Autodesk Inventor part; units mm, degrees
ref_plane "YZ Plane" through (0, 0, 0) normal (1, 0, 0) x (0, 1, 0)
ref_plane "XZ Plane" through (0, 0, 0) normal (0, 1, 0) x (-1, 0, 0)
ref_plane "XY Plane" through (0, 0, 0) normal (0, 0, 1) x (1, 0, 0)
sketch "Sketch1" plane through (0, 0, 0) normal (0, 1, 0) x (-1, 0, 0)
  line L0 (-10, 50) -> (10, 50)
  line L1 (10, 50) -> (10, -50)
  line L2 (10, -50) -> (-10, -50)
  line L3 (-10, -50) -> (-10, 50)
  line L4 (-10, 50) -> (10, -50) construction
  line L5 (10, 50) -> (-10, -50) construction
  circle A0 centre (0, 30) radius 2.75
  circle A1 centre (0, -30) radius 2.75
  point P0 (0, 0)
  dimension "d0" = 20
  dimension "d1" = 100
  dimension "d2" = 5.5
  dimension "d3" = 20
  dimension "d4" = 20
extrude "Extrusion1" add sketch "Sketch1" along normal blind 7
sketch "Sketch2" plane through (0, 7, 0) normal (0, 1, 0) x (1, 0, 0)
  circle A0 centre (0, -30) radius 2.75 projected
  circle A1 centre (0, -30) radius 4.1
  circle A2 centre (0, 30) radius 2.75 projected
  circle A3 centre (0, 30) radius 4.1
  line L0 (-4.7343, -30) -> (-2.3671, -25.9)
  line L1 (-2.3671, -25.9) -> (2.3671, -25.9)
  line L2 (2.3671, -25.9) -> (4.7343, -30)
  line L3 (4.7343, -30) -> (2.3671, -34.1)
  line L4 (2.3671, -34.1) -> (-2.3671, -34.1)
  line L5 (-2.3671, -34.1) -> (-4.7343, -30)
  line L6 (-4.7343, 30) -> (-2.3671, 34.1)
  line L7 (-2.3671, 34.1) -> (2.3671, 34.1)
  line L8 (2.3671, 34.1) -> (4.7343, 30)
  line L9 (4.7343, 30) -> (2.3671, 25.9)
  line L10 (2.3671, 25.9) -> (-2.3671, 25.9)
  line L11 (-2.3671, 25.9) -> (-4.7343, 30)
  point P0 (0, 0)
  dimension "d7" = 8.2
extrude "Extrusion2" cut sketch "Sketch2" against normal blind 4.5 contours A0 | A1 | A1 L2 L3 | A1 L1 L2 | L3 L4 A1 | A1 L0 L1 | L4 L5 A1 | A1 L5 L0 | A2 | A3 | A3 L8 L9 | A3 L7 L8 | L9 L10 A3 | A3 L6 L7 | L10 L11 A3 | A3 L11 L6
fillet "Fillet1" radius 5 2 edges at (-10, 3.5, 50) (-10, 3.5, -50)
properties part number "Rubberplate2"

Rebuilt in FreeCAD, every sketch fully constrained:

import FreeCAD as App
import Part
import Sketcher

V = App.Vector
Q = App.Units.Quantity


def edges_at(feature, points):
    """Names of the edges that pass closest to the given points."""
    edges = feature.Shape.Edges
    near = lambda p: min(range(len(edges)), key=lambda i: edges[i].distToShape(Part.Vertex(*p))[0])
    return sorted({f"Edge{near(p) + 1}" for p in points})

doc = App.newDocument("Part")
body = doc.addObject("PartDesign::Body", "Body")

sketch1 = body.newObject("Sketcher::SketchObject", "Sketch")
sketch1.AttachmentSupport = (doc.getObject("XZ_Plane"), [""])
sketch1.MapMode = "FlatFace"
sketch1.addGeometry(Part.LineSegment(V(-10, 50, 0), V(10, 50, 0)), False)
sketch1.addGeometry(Part.LineSegment(V(10, 50, 0), V(10, -50, 0)), False)
sketch1.addGeometry(Part.LineSegment(V(10, -50, 0), V(-10, -50, 0)), False)
sketch1.addGeometry(Part.LineSegment(V(-10, -50, 0), V(-10, 50, 0)), False)
sketch1.addGeometry(Part.Circle(V(0, -30, 0), V(0, 0, 1), 2.8), False)
sketch1.addGeometry(Part.Circle(V(0, 30, 0), V(0, 0, 1), 2.8), False)
sketch1.addConstraint(Sketcher.Constraint("Coincident", 0, 2, 1, 1))
sketch1.addConstraint(Sketcher.Constraint("Coincident", 1, 2, 2, 1))
sketch1.addConstraint(Sketcher.Constraint("Coincident", 2, 2, 3, 1))
sketch1.addConstraint(Sketcher.Constraint("Coincident", 3, 2, 0, 1))
sketch1.addConstraint(Sketcher.Constraint("Horizontal", 0))
sketch1.addConstraint(Sketcher.Constraint("Vertical", 1))
sketch1.addConstraint(Sketcher.Constraint("Horizontal", 2))
sketch1.addConstraint(Sketcher.Constraint("Vertical", 3))
sketch1.addConstraint(Sketcher.Constraint("Equal", 4, 5))
sketch1.addConstraint(Sketcher.Constraint("Symmetric", 4, 3, 5, 3, -1, 1))
sketch1.addConstraint(Sketcher.Constraint("Symmetric", 0, 2, 2, 2, -1, 1))
sketch1.addConstraint(Sketcher.Constraint("PointOnObject", 4, 3, -2))
sketch1.addConstraint(Sketcher.Constraint("Diameter", 4, Q("5.5 mm")))
sketch1.addConstraint(Sketcher.Constraint("DistanceX", 0, 1, 0, 2, Q("20 mm")))
sketch1.addConstraint(Sketcher.Constraint("DistanceY", 1, 2, 1, 1, Q("100 mm")))
sketch1.addConstraint(Sketcher.Constraint("DistanceY", 5, 3, 0, 2, Q("20 mm")))
pad1 = body.newObject("PartDesign::Pad", "Pad")
pad1.Profile = sketch1
pad1.Length = 7
pad1.Reversed = True

sketch2 = body.newObject("Sketcher::SketchObject", "Sketch001")
sketch2.AttachmentSupport = (doc.getObject("XZ_Plane"), [""])
sketch2.MapMode = "FlatFace"
sketch2.AttachmentOffset = App.Placement(V(0, 0, -7), App.Rotation())
sketch2.addGeometry(Part.LineSegment(V(4.7, 30, 0), V(2.4, 25.9, 0)), False)
sketch2.addGeometry(Part.LineSegment(V(2.4, 25.9, 0), V(-2.4, 25.9, 0)), False)
sketch2.addGeometry(Part.LineSegment(V(-2.4, 25.9, 0), V(-4.7, 30, 0)), False)
sketch2.addGeometry(Part.LineSegment(V(-4.7, 30, 0), V(-2.4, 34.1, 0)), False)
sketch2.addGeometry(Part.LineSegment(V(-2.4, 34.1, 0), V(2.4, 34.1, 0)), False)
sketch2.addGeometry(Part.LineSegment(V(2.4, 34.1, 0), V(4.7, 30, 0)), False)
sketch2.addGeometry(Part.LineSegment(V(4.7, -30, 0), V(2.4, -34.1, 0)), False)
sketch2.addGeometry(Part.LineSegment(V(2.4, -34.1, 0), V(-2.4, -34.1, 0)), False)
sketch2.addGeometry(Part.LineSegment(V(-2.4, -34.1, 0), V(-4.7, -30, 0)), False)
sketch2.addGeometry(Part.LineSegment(V(-4.7, -30, 0), V(-2.4, -25.9, 0)), False)
sketch2.addGeometry(Part.LineSegment(V(-2.4, -25.9, 0), V(2.4, -25.9, 0)), False)
sketch2.addGeometry(Part.LineSegment(V(2.4, -25.9, 0), V(4.7, -30, 0)), False)
sketch2.addConstraint(Sketcher.Constraint("Coincident", 0, 2, 1, 1))
sketch2.addConstraint(Sketcher.Constraint("Coincident", 1, 2, 2, 1))
sketch2.addConstraint(Sketcher.Constraint("Coincident", 2, 2, 3, 1))
sketch2.addConstraint(Sketcher.Constraint("Coincident", 3, 2, 4, 1))
sketch2.addConstraint(Sketcher.Constraint("Coincident", 4, 2, 5, 1))
sketch2.addConstraint(Sketcher.Constraint("Coincident", 5, 2, 0, 1))
sketch2.addConstraint(Sketcher.Constraint("Coincident", 6, 2, 7, 1))
sketch2.addConstraint(Sketcher.Constraint("Coincident", 7, 2, 8, 1))
sketch2.addConstraint(Sketcher.Constraint("Coincident", 8, 2, 9, 1))
sketch2.addConstraint(Sketcher.Constraint("Coincident", 9, 2, 10, 1))
sketch2.addConstraint(Sketcher.Constraint("Coincident", 10, 2, 11, 1))
sketch2.addConstraint(Sketcher.Constraint("Coincident", 11, 2, 6, 1))
sketch2.addConstraint(Sketcher.Constraint("Horizontal", 1))
sketch2.addConstraint(Sketcher.Constraint("Horizontal", 4))
sketch2.addConstraint(Sketcher.Constraint("Horizontal", 7))
sketch2.addConstraint(Sketcher.Constraint("Horizontal", 10))
sketch2.addConstraint(Sketcher.Constraint("Symmetric", 3, 2, 6, 2, -1, 1))
sketch2.addConstraint(Sketcher.Constraint("Symmetric", 5, 2, 8, 2, -1, 1))
sketch2.addConstraint(Sketcher.Constraint("Symmetric", 0, 2, 9, 2, -1, 1))
sketch2.addConstraint(Sketcher.Constraint("Symmetric", 2, 2, 11, 2, -1, 1))
sketch2.addConstraint(Sketcher.Constraint("Symmetric", 2, 2, 5, 2, -2))
sketch2.addConstraint(Sketcher.Constraint("Parallel", 0, 3))
sketch2.addConstraint(Sketcher.Constraint("Parallel", 2, 5))
sketch2.addConstraint(Sketcher.Constraint("Parallel", 5, 8))
sketch2.addConstraint(Sketcher.Constraint("Parallel", 8, 11))
sketch2.addConstraint(Sketcher.Constraint("Vertical", 1, 2, 3, 2))
sketch2.addConstraint(Sketcher.Constraint("Vertical", 0, 2, 4, 2))
sketch2.addConstraint(Sketcher.Constraint("DistanceY", 1, 2, 3, 2, Q("8.2 mm")))
sketch2.addConstraint(Sketcher.Constraint("Angle", 0, Q("-120.0007 deg")))
sketch2.addConstraint(Sketcher.Constraint("DistanceY", -1, 1, 2, 2, Q("30 mm")))
sketch2.addConstraint(Sketcher.Constraint("DistanceX", 1, 2, 1, 1, Q("4.7342 mm")))
pocket1 = body.newObject("PartDesign::Pocket", "Pocket")
pocket1.Profile = sketch2
pocket1.Length = 4.5
pocket1.Reversed = True
doc.recompute()

fillet = body.newObject("PartDesign::Fillet", "Fillet")
fillet.Base = (pocket1, edges_at(pocket1, [(-10, 3.5, 50), (-10, 3.5, -50)]))
fillet.Radius = 5

doc.recompute()
